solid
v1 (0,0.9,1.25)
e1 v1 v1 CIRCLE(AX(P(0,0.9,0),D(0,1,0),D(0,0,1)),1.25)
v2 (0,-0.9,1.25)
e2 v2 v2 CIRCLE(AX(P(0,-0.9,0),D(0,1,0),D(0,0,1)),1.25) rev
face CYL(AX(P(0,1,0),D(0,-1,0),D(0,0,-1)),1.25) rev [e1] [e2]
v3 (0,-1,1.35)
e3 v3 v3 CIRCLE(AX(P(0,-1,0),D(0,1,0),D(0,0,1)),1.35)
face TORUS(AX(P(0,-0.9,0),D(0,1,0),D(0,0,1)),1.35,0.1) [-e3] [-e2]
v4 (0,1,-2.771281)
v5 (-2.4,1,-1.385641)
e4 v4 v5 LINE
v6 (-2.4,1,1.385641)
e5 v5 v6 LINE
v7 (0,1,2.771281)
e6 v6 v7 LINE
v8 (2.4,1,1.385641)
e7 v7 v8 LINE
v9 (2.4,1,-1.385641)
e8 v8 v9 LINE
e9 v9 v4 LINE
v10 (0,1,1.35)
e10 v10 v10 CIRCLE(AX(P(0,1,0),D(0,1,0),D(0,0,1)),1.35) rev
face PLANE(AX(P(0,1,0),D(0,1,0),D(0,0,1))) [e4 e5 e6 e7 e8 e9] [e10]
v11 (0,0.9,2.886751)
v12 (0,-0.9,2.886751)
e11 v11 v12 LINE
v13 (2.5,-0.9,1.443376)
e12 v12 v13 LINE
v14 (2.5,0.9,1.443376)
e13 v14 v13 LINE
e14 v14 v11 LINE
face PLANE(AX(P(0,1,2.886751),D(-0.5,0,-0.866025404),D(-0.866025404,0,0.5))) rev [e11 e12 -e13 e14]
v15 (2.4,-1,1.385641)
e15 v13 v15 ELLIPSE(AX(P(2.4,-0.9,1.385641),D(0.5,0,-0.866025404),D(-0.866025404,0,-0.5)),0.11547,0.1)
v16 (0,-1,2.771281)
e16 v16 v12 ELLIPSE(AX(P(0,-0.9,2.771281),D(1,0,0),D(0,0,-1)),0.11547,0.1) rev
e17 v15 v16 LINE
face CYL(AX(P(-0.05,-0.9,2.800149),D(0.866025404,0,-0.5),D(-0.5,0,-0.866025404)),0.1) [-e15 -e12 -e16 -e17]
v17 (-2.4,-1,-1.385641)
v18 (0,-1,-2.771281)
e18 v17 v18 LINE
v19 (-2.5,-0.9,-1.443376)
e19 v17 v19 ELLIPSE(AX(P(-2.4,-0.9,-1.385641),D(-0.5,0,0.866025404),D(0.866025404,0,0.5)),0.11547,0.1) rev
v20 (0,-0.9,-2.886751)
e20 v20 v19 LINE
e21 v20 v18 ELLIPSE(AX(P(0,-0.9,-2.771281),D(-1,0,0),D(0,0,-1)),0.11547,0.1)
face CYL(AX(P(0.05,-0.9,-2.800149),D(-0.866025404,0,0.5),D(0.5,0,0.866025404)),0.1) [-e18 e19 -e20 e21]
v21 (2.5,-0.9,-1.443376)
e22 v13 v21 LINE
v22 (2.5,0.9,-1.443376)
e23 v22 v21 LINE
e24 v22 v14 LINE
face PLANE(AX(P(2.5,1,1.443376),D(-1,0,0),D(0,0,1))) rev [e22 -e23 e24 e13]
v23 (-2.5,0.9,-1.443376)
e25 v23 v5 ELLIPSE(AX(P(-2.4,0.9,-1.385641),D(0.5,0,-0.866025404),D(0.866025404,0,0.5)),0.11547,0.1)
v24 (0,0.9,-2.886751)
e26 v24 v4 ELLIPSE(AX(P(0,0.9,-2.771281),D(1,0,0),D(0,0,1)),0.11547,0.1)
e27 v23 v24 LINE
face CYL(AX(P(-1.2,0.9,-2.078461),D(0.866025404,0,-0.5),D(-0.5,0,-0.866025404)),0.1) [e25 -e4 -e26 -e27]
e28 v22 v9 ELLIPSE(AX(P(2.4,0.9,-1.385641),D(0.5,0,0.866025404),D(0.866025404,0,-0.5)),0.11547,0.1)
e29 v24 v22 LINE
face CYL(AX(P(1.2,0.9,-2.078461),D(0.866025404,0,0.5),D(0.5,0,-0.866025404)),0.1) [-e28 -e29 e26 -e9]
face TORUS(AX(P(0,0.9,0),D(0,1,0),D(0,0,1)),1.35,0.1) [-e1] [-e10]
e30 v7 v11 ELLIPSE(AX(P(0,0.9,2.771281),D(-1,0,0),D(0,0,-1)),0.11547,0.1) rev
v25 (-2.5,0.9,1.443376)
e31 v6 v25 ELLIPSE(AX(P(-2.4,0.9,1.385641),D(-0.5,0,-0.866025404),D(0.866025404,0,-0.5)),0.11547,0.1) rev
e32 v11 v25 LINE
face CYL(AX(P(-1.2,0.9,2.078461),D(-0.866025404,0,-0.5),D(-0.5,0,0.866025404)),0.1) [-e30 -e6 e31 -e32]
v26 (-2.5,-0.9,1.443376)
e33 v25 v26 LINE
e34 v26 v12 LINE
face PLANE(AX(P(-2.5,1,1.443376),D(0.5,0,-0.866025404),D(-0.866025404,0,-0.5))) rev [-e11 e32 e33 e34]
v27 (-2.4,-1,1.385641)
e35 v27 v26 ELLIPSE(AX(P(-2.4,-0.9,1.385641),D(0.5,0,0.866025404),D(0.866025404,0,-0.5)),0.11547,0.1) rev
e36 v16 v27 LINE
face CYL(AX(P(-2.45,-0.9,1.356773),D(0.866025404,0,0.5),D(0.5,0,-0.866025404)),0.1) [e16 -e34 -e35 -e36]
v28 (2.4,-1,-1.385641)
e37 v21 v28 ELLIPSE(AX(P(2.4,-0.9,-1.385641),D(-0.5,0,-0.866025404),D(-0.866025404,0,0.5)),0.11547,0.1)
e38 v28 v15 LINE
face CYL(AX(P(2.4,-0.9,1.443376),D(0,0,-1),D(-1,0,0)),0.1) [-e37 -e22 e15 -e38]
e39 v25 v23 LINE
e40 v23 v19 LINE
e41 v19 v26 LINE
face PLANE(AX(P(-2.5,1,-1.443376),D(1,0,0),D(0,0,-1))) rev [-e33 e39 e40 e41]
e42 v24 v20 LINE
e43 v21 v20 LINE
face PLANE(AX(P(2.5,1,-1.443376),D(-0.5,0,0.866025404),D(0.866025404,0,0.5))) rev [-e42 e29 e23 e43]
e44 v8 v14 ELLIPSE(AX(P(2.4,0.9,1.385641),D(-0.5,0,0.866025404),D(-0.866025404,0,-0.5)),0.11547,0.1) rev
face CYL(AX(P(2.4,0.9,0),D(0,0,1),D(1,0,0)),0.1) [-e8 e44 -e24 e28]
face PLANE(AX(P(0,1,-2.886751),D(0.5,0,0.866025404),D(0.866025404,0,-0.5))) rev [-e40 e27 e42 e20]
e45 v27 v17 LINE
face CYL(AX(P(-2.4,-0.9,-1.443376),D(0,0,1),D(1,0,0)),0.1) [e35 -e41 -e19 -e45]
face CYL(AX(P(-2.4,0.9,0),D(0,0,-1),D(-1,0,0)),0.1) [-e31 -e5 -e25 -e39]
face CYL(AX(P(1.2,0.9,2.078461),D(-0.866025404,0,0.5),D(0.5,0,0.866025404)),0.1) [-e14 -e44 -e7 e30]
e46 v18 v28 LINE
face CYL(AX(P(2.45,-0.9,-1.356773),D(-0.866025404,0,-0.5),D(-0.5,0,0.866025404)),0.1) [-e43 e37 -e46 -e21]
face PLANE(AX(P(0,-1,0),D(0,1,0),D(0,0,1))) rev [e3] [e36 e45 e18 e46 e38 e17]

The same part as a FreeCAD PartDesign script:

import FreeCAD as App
import Part
import Sketcher

V = App.Vector
Q = App.Units.Quantity


def edges_at(feature, points):
    """Names of the edges that pass closest to the given points."""
    edges = feature.Shape.Edges
    near = lambda p: min(range(len(edges)), key=lambda i: edges[i].distToShape(Part.Vertex(*p))[0])
    return sorted({f"Edge{near(p) + 1}" for p in points})


def add_polygon(sketch, points):
    """Adds a closed chain of lines whose ends are joined by coincident constraints."""
    first, n = sketch.GeometryCount, len(points)
    for a, b in zip(points, points[1:] + points[:1]):
        sketch.addGeometry(Part.LineSegment(App.Vector(*a, 0), App.Vector(*b, 0)), False)
    for i in range(n):
        sketch.addConstraint(Sketcher.Constraint("Coincident", first + i, 2, first + (i + 1) % n, 1))

doc = App.newDocument("Part")
body = doc.addObject("PartDesign::Body", "Body")

# Sketch on XZ plane
sketch1 = body.newObject("Sketcher::SketchObject", "Sketch")
sketch1.AttachmentSupport = (doc.getObject("XZ_Plane"), [""])
sketch1.MapMode = "FlatFace"
add_polygon(sketch1, [(0, -2.9), (-2.5, -1.4), (-2.5, 1.4), (0, 2.9), (2.5, 1.4), (2.5, -1.4)])  # lines 0-5
sketch1.addGeometry(Part.Circle(V(0, 0, 0), V(0, 0, 1), 1.2), False)  # 6
sketch1.addConstraint([
    Sketcher.Constraint("Vertical", 1),
    Sketcher.Constraint("Vertical", 4),
    Sketcher.Constraint("Coincident", 6, 3, -1, 1),
    Sketcher.Constraint("Symmetric", 0, 2, 3, 2, -1, 1),
    Sketcher.Constraint("Symmetric", 2, 2, 5, 2, -1, 1),
    Sketcher.Constraint("PointOnObject", 2, 2, -2),
    Sketcher.Constraint("Parallel", 2, 5),
    Sketcher.Constraint("Horizontal", 1, 2, 3, 2),
    Sketcher.Constraint("Diameter", 6, Q("2.5 mm")),
    Sketcher.Constraint("Angle", 0, Q("150 deg")),
    Sketcher.Constraint("DistanceX", 1, 2, 3, 2, Q("5 mm")),
    Sketcher.Constraint("DistanceY", 1, 1, 1, 2, Q("2.886751 mm")),
])
pad1 = body.newObject("PartDesign::Pad", "Pad")
pad1.Profile = sketch1
pad1.Length = 2
pad1.Midplane = True
doc.recompute()

fillet = body.newObject("PartDesign::Fillet", "Fillet")
fillet.Base = (pad1, edges_at(pad1, [
    (-2.5, 1, 0),
    (-1.25, 1, 2.165),
    (1.25, 1, 2.165),
    (0, -1, -1.25),
    (0, 1, -1.25),
    (2.5, 1, 0),
    (1.25, 1, -2.165),
    (2.5, -1, 0),
    (1.25, -1, 2.165),
    (-1.25, -1, 2.165),
    (-1.25, 1, -2.165),
    (-2.5, -1, 0),
    (-1.25, -1, -2.165),
    (1.25, -1, -2.165),
]))
fillet.Radius = 0.1

doc.recompute()
